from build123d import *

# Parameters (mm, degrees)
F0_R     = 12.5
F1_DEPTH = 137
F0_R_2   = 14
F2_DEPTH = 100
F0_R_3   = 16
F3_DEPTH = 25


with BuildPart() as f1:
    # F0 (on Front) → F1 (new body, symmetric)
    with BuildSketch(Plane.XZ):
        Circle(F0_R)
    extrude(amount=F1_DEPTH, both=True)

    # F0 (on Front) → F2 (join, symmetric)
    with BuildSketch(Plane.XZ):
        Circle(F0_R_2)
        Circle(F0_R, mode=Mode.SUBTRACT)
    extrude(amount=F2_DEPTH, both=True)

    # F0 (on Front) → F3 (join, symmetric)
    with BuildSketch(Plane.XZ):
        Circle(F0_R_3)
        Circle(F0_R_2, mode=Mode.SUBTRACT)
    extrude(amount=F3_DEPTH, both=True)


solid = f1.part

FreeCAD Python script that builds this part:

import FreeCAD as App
import Part
import Sketcher
from FreeCAD import Vector

doc = App.newDocument("Part")
params = doc.addObject("Spreadsheet::Sheet", "Params")
for row, (alias, value) in enumerate([
    ("sketch1_diameter", "25 mm"),
    ("pad1_length", "274 mm"),
    ("sketch2_diameter", "28 mm"),
    ("sketch2_diameter2", "25 mm"),
    ("pad2_length", "200 mm"),
    ("sketch3_diameter", "32 mm"),
    ("sketch3_diameter2", "28 mm"),
    ("pad3_length", "50 mm"),
], start=1):
    params.set(f"A{row}", alias)
    params.set(f"B{row}", "=" + value)
    params.setAlias(f"B{row}", alias)

body = doc.addObject("PartDesign::Body", "Body")

# Sketch on XZ plane
sketch1 = doc.addObject("Sketcher::SketchObject", "Sketch")
body.addObject(sketch1)
sketch1.AttachmentSupport = (doc.XZ_Plane, [""])
sketch1.MapMode = "FlatFace"
sketch1.addGeometry(Part.Circle(Vector(0, 0, 0), Vector(0, 0, 1), 12), False)
sketch1.addConstraint([
    Sketcher.Constraint("Coincident", 0, 3, -1, 1),
    Sketcher.Constraint("Diameter", 0, 25.0),
])
sketch1.setExpression("Constraints[1]", "Params.sketch1_diameter")
pad1 = doc.addObject("PartDesign::Pad", "Pad")
body.addObject(pad1)
pad1.Profile = sketch1
pad1.setExpression("Length", "Params.pad1_length")
pad1.Midplane = True

# Sketch on XZ plane
sketch2 = doc.addObject("Sketcher::SketchObject", "Sketch001")
body.addObject(sketch2)
sketch2.AttachmentSupport = (doc.XZ_Plane, [""])
sketch2.MapMode = "FlatFace"
sketch2.addGeometry([
    Part.Circle(Vector(0, 0, 0), Vector(0, 0, 1), 14),
    Part.Circle(Vector(0, 0, 0), Vector(0, 0, 1), 12),
], False)
sketch2.addConstraint([
    Sketcher.Constraint("Coincident", 0, 3, -1, 1),
    Sketcher.Constraint("Coincident", 1, 3, -1, 1),
    Sketcher.Constraint("Diameter", 0, 28.0),
    Sketcher.Constraint("Diameter", 1, 25.0),
])
sketch2.setExpression("Constraints[2]", "Params.sketch2_diameter")
sketch2.setExpression("Constraints[3]", "Params.sketch2_diameter2")
pad2 = doc.addObject("PartDesign::Pad", "Pad001")
body.addObject(pad2)
pad2.Profile = sketch2
pad2.setExpression("Length", "Params.pad2_length")
pad2.Midplane = True

# Sketch on XZ plane
sketch3 = doc.addObject("Sketcher::SketchObject", "Sketch002")
body.addObject(sketch3)
sketch3.AttachmentSupport = (doc.XZ_Plane, [""])
sketch3.MapMode = "FlatFace"
sketch3.addGeometry([
    Part.Circle(Vector(0, 0, 0), Vector(0, 0, 1), 16),
    Part.Circle(Vector(0, 0, 0), Vector(0, 0, 1), 14),
], False)
sketch3.addConstraint([
    Sketcher.Constraint("Coincident", 0, 3, -1, 1),
    Sketcher.Constraint("Coincident", 1, 3, -1, 1),
    Sketcher.Constraint("Diameter", 0, 32.0),
    Sketcher.Constraint("Diameter", 1, 28.0),
])
sketch3.setExpression("Constraints[2]", "Params.sketch3_diameter")
sketch3.setExpression("Constraints[3]", "Params.sketch3_diameter2")
pad3 = doc.addObject("PartDesign::Pad", "Pad002")
body.addObject(pad3)
pad3.Profile = sketch3
pad3.setExpression("Length", "Params.pad3_length")
pad3.Midplane = True

doc.recompute()
